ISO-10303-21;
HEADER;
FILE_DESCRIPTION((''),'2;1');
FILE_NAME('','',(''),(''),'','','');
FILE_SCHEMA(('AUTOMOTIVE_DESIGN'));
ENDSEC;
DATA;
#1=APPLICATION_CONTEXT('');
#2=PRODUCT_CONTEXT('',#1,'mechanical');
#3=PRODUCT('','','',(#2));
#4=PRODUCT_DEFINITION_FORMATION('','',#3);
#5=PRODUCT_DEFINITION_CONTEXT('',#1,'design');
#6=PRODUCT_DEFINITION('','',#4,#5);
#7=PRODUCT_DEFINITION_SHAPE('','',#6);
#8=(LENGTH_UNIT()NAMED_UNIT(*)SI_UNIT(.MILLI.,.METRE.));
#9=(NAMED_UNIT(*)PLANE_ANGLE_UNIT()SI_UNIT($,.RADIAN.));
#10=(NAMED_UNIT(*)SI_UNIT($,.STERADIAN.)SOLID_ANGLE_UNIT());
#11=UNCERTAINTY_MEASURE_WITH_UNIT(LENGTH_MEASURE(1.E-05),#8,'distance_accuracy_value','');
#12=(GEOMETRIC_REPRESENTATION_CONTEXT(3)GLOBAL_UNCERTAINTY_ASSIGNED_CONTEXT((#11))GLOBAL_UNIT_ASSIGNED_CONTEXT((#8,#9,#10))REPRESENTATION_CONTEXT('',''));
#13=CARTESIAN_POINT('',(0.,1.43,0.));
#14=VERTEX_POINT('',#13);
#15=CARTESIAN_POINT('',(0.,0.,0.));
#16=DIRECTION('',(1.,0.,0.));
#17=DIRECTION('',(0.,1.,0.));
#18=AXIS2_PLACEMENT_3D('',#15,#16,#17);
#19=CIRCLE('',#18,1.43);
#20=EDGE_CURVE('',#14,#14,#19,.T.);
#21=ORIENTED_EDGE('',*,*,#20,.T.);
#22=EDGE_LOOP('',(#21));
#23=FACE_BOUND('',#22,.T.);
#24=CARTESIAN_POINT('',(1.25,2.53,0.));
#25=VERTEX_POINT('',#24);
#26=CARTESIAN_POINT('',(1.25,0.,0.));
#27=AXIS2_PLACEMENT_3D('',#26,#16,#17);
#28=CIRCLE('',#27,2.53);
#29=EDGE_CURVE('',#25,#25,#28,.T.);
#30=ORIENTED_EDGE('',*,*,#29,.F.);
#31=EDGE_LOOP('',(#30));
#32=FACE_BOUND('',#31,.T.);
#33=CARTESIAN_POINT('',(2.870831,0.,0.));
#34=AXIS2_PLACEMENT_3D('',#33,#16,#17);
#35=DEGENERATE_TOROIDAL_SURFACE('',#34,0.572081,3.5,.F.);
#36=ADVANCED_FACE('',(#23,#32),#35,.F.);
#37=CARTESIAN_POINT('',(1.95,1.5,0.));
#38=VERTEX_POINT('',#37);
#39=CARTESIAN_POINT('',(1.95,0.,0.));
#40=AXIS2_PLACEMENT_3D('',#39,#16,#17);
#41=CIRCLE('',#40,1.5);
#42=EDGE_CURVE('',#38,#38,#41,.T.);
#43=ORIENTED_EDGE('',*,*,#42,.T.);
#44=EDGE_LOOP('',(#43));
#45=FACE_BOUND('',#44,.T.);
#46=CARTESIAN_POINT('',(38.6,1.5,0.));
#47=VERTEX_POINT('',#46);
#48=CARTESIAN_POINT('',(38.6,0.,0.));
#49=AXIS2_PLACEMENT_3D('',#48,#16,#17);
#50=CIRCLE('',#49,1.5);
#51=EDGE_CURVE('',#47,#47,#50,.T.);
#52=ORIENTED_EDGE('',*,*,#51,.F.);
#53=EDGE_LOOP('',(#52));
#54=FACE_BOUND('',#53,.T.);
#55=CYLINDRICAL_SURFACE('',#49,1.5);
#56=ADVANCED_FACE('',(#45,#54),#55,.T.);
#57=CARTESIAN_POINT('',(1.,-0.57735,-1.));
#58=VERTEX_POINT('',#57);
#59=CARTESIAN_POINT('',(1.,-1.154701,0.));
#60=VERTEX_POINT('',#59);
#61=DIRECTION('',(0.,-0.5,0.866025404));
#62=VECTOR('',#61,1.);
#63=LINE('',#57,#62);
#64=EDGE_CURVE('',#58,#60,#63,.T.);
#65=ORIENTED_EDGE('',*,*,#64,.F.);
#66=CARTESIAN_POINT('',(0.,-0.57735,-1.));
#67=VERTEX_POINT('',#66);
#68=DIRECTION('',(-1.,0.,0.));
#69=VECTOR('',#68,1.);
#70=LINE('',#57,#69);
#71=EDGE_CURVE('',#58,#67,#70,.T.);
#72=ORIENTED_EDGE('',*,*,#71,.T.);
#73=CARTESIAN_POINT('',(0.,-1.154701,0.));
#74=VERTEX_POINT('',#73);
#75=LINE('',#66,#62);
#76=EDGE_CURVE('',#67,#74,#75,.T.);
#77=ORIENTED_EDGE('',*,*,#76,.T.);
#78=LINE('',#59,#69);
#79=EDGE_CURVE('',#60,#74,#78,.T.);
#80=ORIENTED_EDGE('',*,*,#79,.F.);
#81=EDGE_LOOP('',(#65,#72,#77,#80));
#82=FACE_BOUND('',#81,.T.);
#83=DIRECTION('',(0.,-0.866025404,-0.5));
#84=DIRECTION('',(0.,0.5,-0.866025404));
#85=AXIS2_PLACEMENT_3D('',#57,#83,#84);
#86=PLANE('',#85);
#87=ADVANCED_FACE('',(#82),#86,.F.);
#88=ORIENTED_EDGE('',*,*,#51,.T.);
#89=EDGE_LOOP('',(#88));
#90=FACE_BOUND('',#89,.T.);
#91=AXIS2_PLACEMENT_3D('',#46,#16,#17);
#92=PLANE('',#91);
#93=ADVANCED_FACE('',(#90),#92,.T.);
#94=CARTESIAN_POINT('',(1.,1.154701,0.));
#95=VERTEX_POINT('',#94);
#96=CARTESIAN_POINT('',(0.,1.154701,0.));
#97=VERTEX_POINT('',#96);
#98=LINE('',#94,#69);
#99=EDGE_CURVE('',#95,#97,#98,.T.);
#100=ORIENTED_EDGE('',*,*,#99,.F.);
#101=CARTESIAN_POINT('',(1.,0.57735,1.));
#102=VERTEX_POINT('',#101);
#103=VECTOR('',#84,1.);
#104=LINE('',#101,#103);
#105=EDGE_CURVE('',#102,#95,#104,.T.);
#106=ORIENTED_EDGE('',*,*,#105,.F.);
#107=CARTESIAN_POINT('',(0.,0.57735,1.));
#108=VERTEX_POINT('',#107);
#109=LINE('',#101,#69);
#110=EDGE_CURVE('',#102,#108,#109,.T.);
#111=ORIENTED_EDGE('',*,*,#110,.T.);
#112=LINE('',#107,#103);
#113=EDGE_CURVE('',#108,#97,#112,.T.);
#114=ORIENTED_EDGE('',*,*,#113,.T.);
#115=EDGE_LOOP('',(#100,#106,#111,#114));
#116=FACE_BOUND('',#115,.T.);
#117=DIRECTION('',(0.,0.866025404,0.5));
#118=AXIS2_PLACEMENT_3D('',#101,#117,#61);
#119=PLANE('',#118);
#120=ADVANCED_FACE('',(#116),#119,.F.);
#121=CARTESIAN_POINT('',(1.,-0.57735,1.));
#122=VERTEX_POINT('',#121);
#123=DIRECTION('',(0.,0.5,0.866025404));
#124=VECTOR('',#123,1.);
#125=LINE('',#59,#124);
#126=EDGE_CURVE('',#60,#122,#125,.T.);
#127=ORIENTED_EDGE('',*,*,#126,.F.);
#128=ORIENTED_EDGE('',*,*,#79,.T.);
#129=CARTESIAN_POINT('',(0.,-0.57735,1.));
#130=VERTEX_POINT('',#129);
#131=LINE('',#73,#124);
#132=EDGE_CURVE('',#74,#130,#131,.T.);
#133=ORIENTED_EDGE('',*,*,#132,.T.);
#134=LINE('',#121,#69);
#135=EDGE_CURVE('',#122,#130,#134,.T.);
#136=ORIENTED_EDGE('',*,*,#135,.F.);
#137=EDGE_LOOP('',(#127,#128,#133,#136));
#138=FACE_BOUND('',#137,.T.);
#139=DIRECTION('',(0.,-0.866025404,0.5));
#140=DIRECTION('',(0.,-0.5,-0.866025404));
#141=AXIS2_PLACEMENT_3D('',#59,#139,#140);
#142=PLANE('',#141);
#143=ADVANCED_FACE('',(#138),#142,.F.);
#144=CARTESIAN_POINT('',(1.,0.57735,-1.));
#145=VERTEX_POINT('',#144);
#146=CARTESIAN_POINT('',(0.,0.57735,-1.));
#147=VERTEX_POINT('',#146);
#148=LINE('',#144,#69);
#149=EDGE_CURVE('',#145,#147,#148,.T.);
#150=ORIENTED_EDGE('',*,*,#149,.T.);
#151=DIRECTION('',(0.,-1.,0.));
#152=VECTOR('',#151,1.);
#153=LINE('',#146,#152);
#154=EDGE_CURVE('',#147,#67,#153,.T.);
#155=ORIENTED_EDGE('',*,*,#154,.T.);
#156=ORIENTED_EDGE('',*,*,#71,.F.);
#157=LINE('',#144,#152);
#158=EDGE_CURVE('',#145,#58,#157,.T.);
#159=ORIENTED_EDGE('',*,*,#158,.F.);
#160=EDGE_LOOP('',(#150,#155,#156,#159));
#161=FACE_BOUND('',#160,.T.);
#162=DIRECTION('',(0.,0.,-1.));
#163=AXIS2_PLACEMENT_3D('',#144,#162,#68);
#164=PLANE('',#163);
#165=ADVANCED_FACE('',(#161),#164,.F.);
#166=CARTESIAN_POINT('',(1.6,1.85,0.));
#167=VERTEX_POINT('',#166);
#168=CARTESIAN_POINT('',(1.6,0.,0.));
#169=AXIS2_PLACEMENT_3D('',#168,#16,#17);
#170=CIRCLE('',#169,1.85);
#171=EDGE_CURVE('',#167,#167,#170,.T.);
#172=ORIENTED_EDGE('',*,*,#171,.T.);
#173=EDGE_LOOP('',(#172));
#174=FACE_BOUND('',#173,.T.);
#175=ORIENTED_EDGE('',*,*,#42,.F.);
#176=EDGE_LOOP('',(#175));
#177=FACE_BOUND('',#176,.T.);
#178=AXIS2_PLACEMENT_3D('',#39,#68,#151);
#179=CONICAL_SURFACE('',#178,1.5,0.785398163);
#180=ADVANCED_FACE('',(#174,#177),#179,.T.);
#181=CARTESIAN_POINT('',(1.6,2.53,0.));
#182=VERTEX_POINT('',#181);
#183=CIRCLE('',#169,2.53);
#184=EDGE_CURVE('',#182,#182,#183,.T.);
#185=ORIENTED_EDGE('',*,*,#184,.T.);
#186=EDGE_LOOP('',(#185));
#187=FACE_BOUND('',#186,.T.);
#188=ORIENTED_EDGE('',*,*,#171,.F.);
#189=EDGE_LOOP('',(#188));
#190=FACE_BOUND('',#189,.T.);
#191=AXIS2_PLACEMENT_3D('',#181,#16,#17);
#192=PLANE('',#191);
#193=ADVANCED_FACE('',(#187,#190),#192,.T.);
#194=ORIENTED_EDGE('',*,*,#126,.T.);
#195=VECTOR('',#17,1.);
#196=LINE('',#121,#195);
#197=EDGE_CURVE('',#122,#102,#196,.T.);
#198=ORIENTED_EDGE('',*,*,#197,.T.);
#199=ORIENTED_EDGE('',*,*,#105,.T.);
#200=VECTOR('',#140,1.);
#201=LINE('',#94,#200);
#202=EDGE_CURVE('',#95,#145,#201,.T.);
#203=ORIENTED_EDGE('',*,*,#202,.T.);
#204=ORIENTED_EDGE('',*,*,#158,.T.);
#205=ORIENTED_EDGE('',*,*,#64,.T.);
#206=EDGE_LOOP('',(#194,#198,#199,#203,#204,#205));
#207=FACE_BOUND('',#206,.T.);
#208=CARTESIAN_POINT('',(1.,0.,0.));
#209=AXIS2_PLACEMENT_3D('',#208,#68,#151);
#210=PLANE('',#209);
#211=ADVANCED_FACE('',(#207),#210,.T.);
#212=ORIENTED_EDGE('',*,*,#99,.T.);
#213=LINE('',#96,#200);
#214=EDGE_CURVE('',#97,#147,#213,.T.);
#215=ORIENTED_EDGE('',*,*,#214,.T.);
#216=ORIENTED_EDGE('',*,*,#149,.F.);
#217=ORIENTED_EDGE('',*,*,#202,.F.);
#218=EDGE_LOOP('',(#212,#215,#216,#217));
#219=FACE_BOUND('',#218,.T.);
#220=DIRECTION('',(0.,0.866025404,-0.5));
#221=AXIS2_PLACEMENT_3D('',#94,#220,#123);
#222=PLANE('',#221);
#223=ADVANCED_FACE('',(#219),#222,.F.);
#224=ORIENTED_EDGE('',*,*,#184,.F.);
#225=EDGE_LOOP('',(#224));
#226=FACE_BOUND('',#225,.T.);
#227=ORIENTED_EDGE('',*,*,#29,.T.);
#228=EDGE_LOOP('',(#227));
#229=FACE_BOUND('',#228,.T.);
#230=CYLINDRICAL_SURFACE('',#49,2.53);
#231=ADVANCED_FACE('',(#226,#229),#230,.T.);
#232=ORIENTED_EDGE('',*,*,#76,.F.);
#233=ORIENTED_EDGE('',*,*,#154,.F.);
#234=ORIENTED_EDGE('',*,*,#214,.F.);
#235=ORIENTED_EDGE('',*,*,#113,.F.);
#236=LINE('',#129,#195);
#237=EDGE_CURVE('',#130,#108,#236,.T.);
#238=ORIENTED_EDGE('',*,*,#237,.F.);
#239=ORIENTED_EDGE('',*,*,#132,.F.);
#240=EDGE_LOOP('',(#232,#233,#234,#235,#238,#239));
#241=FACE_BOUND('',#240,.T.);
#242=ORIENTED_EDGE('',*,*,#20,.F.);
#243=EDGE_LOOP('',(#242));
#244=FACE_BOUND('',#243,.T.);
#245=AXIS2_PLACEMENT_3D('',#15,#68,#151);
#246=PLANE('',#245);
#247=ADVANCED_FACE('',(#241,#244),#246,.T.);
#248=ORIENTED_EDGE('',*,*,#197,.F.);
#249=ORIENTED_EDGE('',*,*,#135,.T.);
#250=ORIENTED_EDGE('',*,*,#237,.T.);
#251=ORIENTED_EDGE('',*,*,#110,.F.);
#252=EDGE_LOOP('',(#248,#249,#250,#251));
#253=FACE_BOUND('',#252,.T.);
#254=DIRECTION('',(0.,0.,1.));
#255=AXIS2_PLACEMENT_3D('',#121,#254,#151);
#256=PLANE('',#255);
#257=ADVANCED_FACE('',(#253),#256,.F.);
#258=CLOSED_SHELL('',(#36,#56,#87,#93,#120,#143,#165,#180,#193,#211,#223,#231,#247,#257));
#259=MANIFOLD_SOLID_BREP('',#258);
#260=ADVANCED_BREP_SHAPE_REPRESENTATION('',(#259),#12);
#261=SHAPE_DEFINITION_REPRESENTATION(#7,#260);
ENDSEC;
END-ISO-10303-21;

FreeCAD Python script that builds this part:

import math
import FreeCAD as App
import Part
import Sketcher
from FreeCAD import Vector
Q = App.Units.Quantity

doc = App.newDocument("Part")
body = doc.addObject("PartDesign::Body", "Body")

# Sketch on XY plane
sketch1 = body.newObject("Sketcher::SketchObject", "Sketch")
sketch1.AttachmentSupport = (doc.getObject("XY_Plane"), [""])
sketch1.MapMode = "FlatFace"
sketch1.addGeometry([
    Part.LineSegment(Vector(0, 1.43, 0), Vector(0, 0, 0)),  # 0
    Part.LineSegment(Vector(0, 0, 0), Vector(38.6, 0, 0)),  # 1
    Part.LineSegment(Vector(38.6, 0, 0), Vector(38.6, 1.5, 0)),  # 2
    Part.LineSegment(Vector(38.6, 1.5, 0), Vector(1.95, 1.5, 0)),  # 3
    Part.LineSegment(Vector(1.95, 1.5, 0), Vector(1.6, 1.85, 0)),  # 4
    Part.LineSegment(Vector(1.6, 1.85, 0), Vector(1.6, 2.53, 0)),  # 5
    Part.LineSegment(Vector(1.6, 2.53, 0), Vector(1.25, 2.53, 0)),  # 6
    Part.ArcOfCircle(Part.Circle(Vector(2.87, -0.57, 0), Vector(0, 0, 1), 3.5), math.radians(118), math.radians(145)),  # 7
], False)
sketch1.addConstraint([
    Sketcher.Constraint("Coincident", 0, 2, 1, 1),
    Sketcher.Constraint("Coincident", 1, 2, 2, 1),
    Sketcher.Constraint("Coincident", 2, 2, 3, 1),
    Sketcher.Constraint("Coincident", 3, 2, 4, 1),
    Sketcher.Constraint("Coincident", 4, 2, 5, 1),
    Sketcher.Constraint("Coincident", 5, 2, 6, 1),
    Sketcher.Constraint("Coincident", 6, 2, 7, 1),
    Sketcher.Constraint("Coincident", 7, 2, 0, 1),
    Sketcher.Constraint("Vertical", 0),
    Sketcher.Constraint("Horizontal", 1),
    Sketcher.Constraint("Vertical", 2),
    Sketcher.Constraint("Horizontal", 3),
    Sketcher.Constraint("Vertical", 5),
    Sketcher.Constraint("Horizontal", 6),
    Sketcher.Constraint("Coincident", 0, 2, -1, 1),
    Sketcher.Constraint("Radius", 7, 3.5),
    Sketcher.Constraint("Angle", 4, Q("135 deg")),
    Sketcher.Constraint("DistanceX", 1, 1, 1, 2, 38.6),
    Sketcher.Constraint("DistanceY", 2, 1, 2, 2, 1.5),
    Sketcher.Constraint("DistanceX", 4, 2, 2, 2, 37.0),
    Sketcher.Constraint("DistanceX", 3, 2, 3, 1, 36.65),
    Sketcher.Constraint("DistanceX", 6, 2, 6, 1, 0.35),
    Sketcher.Constraint("DistanceY", 0, 2, 0, 1, 1.43),
    Sketcher.Constraint("DistanceY", 5, 1, 5, 2, 0.68),
])
revolution = body.newObject("PartDesign::Revolution", "Revolution")
revolution.Profile = sketch1
revolution.ReferenceAxis = (sketch1, ["H_Axis"])
revolution.Angle = 360

# Sketch on YZ plane
sketch2 = body.newObject("Sketcher::SketchObject", "Sketch001")
sketch2.AttachmentSupport = (doc.getObject("YZ_Plane"), [""])
sketch2.MapMode = "FlatFace"
sketch2.addGeometry([
    Part.LineSegment(Vector(1.2, 0, 0), Vector(0.6, -1, 0)),  # 0
    Part.LineSegment(Vector(0.6, -1, 0), Vector(-0.6, -1, 0)),  # 1
    Part.LineSegment(Vector(-0.6, -1, 0), Vector(-1.2, 0, 0)),  # 2
    Part.LineSegment(Vector(-1.2, 0, 0), Vector(-0.6, 1, 0)),  # 3
    Part.LineSegment(Vector(-0.6, 1, 0), Vector(0.6, 1, 0)),  # 4
    Part.LineSegment(Vector(0.6, 1, 0), Vector(1.2, 0, 0)),  # 5
], False)
sketch2.addConstraint([
    Sketcher.Constraint("Coincident", 0, 2, 1, 1),
    Sketcher.Constraint("Coincident", 1, 2, 2, 1),
    Sketcher.Constraint("Coincident", 2, 2, 3, 1),
    Sketcher.Constraint("Coincident", 3, 2, 4, 1),
    Sketcher.Constraint("Coincident", 4, 2, 5, 1),
    Sketcher.Constraint("Coincident", 5, 2, 0, 1),
    Sketcher.Constraint("Horizontal", 1),
    Sketcher.Constraint("Horizontal", 4),
    Sketcher.Constraint("Symmetric", 0, 2, 3, 2, -1, 1),
    Sketcher.Constraint("Symmetric", 2, 2, 5, 2, -1, 1),
    Sketcher.Constraint("PointOnObject", 2, 2, -1),
    Sketcher.Constraint("Parallel", 2, 5),
    Sketcher.Constraint("Vertical", 1, 2, 3, 2),
    Sketcher.Constraint("Angle", 0, Q("-120 deg")),
    Sketcher.Constraint("DistanceY", 0, 2, -1, 1, 1.0),
    Sketcher.Constraint("DistanceX", 1, 2, 1, 1, 1.154701),
])
pocket1 = body.newObject("PartDesign::Pocket", "Pocket")
pocket1.Profile = sketch2
pocket1.Length = 1
pocket1.Reversed = True

doc.recompute()
